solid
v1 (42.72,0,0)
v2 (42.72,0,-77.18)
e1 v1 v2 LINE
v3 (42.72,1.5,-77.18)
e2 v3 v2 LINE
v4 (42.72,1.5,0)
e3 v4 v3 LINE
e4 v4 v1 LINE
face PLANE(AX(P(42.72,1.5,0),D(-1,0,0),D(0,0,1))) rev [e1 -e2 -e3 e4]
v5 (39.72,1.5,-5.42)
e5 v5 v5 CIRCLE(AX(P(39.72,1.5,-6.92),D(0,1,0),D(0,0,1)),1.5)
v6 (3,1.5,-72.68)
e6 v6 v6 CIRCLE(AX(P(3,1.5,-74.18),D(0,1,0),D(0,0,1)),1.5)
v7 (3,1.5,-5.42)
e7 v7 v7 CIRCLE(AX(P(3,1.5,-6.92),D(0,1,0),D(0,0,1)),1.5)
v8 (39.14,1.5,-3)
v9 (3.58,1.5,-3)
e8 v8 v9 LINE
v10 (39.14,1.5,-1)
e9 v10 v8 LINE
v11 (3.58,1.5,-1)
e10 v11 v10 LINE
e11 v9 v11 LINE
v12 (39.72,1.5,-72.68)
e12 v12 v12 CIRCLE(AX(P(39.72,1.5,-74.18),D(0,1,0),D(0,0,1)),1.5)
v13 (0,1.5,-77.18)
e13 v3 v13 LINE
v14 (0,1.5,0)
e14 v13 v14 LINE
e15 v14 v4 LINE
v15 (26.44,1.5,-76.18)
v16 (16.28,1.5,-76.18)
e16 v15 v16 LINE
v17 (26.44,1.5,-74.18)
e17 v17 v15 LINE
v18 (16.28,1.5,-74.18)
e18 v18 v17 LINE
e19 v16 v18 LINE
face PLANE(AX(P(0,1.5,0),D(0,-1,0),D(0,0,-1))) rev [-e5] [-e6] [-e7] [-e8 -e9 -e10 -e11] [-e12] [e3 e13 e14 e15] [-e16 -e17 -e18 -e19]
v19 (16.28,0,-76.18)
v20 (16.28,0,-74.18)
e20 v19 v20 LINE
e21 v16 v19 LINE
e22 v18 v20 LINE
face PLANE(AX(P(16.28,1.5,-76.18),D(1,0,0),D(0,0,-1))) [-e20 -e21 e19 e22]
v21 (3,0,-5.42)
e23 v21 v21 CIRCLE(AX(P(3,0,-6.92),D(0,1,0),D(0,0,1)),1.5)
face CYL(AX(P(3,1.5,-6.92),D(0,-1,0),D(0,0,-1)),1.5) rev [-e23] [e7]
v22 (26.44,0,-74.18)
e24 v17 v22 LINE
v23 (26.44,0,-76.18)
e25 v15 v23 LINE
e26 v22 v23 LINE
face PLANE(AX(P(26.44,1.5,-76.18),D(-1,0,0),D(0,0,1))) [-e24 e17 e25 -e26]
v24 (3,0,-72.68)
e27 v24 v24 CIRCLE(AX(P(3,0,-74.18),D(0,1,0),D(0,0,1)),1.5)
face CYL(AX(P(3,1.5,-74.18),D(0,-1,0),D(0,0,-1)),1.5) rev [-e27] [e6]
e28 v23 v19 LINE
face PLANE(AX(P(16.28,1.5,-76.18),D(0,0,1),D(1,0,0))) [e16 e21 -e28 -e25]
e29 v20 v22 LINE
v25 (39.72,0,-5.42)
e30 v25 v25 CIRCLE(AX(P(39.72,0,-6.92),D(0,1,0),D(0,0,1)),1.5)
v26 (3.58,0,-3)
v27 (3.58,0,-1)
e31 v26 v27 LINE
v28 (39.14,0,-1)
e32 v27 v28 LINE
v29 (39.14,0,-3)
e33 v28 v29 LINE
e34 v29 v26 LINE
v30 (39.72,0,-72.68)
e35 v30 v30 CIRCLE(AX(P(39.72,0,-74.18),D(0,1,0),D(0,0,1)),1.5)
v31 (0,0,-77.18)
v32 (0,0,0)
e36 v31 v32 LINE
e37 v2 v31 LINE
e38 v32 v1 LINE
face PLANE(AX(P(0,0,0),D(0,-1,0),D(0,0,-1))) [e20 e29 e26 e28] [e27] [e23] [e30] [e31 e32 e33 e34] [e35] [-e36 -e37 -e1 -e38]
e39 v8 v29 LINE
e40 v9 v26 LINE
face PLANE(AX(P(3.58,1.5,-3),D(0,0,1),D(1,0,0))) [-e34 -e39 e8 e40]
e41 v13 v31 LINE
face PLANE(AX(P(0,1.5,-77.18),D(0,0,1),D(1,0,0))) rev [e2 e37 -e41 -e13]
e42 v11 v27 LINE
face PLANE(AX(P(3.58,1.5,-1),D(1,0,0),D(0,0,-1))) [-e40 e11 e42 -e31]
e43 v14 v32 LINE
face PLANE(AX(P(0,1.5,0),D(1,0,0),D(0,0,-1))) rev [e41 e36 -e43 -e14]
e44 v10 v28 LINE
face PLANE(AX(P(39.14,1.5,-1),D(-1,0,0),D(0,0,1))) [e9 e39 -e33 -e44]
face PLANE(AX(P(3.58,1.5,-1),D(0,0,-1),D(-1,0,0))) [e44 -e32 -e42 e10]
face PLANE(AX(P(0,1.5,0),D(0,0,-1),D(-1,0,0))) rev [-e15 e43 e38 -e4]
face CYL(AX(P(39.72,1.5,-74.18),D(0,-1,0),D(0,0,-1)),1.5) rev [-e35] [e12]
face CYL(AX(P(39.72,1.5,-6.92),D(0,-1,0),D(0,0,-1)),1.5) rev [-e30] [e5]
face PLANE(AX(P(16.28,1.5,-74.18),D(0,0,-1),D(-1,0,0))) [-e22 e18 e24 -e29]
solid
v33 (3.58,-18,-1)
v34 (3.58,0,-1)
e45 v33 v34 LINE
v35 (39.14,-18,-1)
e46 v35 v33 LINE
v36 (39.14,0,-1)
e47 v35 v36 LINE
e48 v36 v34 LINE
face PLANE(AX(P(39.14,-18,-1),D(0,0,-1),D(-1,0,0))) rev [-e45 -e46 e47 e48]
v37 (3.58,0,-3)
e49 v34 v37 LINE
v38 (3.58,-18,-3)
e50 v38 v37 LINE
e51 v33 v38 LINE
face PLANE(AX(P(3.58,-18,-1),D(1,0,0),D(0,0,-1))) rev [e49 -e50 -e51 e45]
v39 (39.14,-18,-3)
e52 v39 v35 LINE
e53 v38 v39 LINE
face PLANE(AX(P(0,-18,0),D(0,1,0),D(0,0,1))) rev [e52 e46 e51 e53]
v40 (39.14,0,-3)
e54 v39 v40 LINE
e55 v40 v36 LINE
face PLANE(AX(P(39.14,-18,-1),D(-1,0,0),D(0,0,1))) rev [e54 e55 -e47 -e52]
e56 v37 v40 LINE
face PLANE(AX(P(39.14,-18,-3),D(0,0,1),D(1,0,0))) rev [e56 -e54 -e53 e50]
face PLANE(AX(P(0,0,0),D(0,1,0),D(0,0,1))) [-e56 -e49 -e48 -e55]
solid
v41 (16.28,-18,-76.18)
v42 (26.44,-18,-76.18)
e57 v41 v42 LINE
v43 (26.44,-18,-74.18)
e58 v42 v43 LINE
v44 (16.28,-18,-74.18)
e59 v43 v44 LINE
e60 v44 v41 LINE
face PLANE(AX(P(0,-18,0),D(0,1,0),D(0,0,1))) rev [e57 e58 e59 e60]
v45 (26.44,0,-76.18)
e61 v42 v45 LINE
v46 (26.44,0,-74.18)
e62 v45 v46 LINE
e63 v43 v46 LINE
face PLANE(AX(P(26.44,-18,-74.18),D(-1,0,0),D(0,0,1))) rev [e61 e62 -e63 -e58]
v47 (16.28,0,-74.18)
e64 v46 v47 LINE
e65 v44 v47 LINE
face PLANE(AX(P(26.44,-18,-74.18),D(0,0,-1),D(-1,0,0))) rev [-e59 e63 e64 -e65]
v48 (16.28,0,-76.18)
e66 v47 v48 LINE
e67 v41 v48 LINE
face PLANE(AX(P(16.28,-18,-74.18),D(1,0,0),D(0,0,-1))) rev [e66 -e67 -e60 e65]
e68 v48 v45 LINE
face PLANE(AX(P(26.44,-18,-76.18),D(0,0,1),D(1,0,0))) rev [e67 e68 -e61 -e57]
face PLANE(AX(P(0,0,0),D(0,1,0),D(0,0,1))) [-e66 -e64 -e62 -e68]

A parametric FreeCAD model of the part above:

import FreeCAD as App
import Part
import Sketcher

V = App.Vector


def add_polygon(sketch, points):
    """Adds a closed chain of lines whose ends are joined by coincident constraints."""
    first, n = sketch.GeometryCount, len(points)
    for a, b in zip(points, points[1:] + points[:1]):
        sketch.addGeometry(Part.LineSegment(App.Vector(*a, 0), App.Vector(*b, 0)), False)
    for i in range(n):
        sketch.addConstraint(Sketcher.Constraint("Coincident", first + i, 2, first + (i + 1) % n, 1))

doc = App.newDocument("Part")
params = doc.addObject("Spreadsheet::Sheet", "Params")
for row, (alias, value) in enumerate([
    ("sketch1_diameter", "3 mm"),
    ("sketch1_height", "2 mm"),
    ("sketch1_width", "42.72 mm"),
    ("sketch1_width2", "35.56 mm"),
    ("sketch1_width3", "10.16 mm"),
    ("pad1_length", "1.5 mm"),
    ("sketch2_height", "2 mm"),
    ("sketch2_width", "35.56 mm"),
    ("pad2_length", "18 mm"),
    ("sketch3_height", "2 mm"),
    ("sketch3_width", "10.16 mm"),
    ("pad3_length", "18 mm"),
], start=1):
    params.set(f"A{row}", alias)
    params.set(f"B{row}", "=" + value)
    params.setAlias(f"B{row}", alias)

body = doc.addObject("PartDesign::Body", "Body")

# Sketch on XZ plane
sketch1 = body.newObject("Sketcher::SketchObject", "Sketch")
sketch1.AttachmentSupport = (doc.getObject("XZ_Plane"), [""])
sketch1.MapMode = "FlatFace"
add_polygon(sketch1, [(0, -77.2), (0, 0), (42.7, 0), (42.7, -77.2)])  # lines 0-3
sketch1.addGeometry(Part.Circle(V(3, -6.9, 0), V(0, 0, 1), 1.5), False)  # 4
add_polygon(sketch1, [(39.1, -1), (3.6, -1), (3.6, -3), (39.1, -3)])  # lines 5-8
sketch1.addGeometry(Part.Circle(V(39.7, -6.9, 0), V(0, 0, 1), 1.5), False)  # 9
sketch1.addGeometry(Part.Circle(V(3, -74.2, 0), V(0, 0, 1), 1.5), False)  # 10
add_polygon(sketch1, [(26.4, -74.2), (16.3, -74.2), (16.3, -76.2), (26.4, -76.2)])  # lines 11-14
sketch1.addGeometry(Part.Circle(V(39.7, -74.2, 0), V(0, 0, 1), 1.5), False)  # 15
sketch1.addConstraint([
    Sketcher.Constraint("Vertical", 0),
    Sketcher.Constraint("Horizontal", 1),
    Sketcher.Constraint("Vertical", 2),
    Sketcher.Constraint("Horizontal", 3),
    Sketcher.Constraint("Horizontal", 5),
    Sketcher.Constraint("Vertical", 6),
    Sketcher.Constraint("Horizontal", 7),
    Sketcher.Constraint("Vertical", 8),
    Sketcher.Constraint("Horizontal", 11),
    Sketcher.Constraint("Vertical", 12),
    Sketcher.Constraint("Horizontal", 13),
    Sketcher.Constraint("Vertical", 14),
    Sketcher.Constraint("Coincident", 0, 2, -1, 1),
    Sketcher.Constraint("Equal", 4, 9),
    Sketcher.Constraint("Equal", 9, 10),
    Sketcher.Constraint("Equal", 10, 15),
    Sketcher.Constraint("Horizontal", 4, 3, 9, 3),
    Sketcher.Constraint("Horizontal", 10, 3, 15, 3),
    Sketcher.Constraint("Horizontal", 15, 3, 11, 2),
    Sketcher.Constraint("Vertical", 4, 3, 10, 3),
    Sketcher.Constraint("Vertical", 9, 3, 15, 3),
    Sketcher.Constraint("Equal", 8, 12),
    Sketcher.Constraint("Diameter", 4, 3.0),
    Sketcher.Constraint("DistanceY", 6, 2, 6, 1, 2.0),
    Sketcher.Constraint("DistanceX", -1, 1, 4, 3, 3.0),
    Sketcher.Constraint("DistanceY", 5, 2, -1, 1, 1.0),
    Sketcher.Constraint("DistanceX", 9, 3, 1, 2, 3.0),
    Sketcher.Constraint("DistanceY", 2, 2, 15, 3, 3.0),
    Sketcher.Constraint("DistanceX", 1, 1, 1, 2, 42.72),
    Sketcher.Constraint("DistanceX", 5, 2, 5, 1, 35.56),
    Sketcher.Constraint("DistanceX", 11, 2, 11, 1, 10.16),
    Sketcher.Constraint("DistanceY", 0, 1, 0, 2, 77.18),
    Sketcher.Constraint("DistanceY", 4, 3, -1, 1, 6.92),
    Sketcher.Constraint("DistanceX", -1, 1, 5, 2, 3.58),
    Sketcher.Constraint("DistanceX", -1, 1, 11, 2, 16.28),
])
sketch1.setExpression("Constraints[34]", "Params.sketch1_diameter")
sketch1.setExpression("Constraints[35]", "Params.sketch1_height")
sketch1.setExpression("Constraints[40]", "Params.sketch1_width")
sketch1.setExpression("Constraints[41]", "Params.sketch1_width2")
sketch1.setExpression("Constraints[42]", "Params.sketch1_width3")
pad1 = body.newObject("PartDesign::Pad", "Pad")
pad1.Profile = sketch1
pad1.setExpression("Length", "Params.pad1_length")
pad1.Reversed = True
body2 = doc.addObject("PartDesign::Body", "Body001")

# Sketch on XZ plane
sketch2 = body2.newObject("Sketcher::SketchObject", "Sketch001")
sketch2.AttachmentSupport = (doc.getObject("XZ_Plane001"), [""])
sketch2.MapMode = "FlatFace"
add_polygon(sketch2, [(3.6, -1), (3.6, -3), (39.1, -3), (39.1, -1)])  # lines 0-3
sketch2.addConstraint([
    Sketcher.Constraint("Vertical", 0),
    Sketcher.Constraint("Horizontal", 1),
    Sketcher.Constraint("Vertical", 2),
    Sketcher.Constraint("Horizontal", 3),
    Sketcher.Constraint("DistanceY", 0, 2, 0, 1, 2.0),
    Sketcher.Constraint("DistanceY", 0, 2, -1, 1, 3.0),
    Sketcher.Constraint("DistanceX", 1, 1, 1, 2, 35.56),
    Sketcher.Constraint("DistanceX", -1, 1, 0, 2, 3.58),
])
sketch2.setExpression("Constraints[8]", "Params.sketch2_height")
sketch2.setExpression("Constraints[10]", "Params.sketch2_width")
pad2 = body2.newObject("PartDesign::Pad", "Pad001")
pad2.Profile = sketch2
pad2.setExpression("Length", "Params.pad2_length")
body3 = doc.addObject("PartDesign::Body", "Body002")

# Sketch on XZ plane
sketch3 = body3.newObject("Sketcher::SketchObject", "Sketch002")
sketch3.AttachmentSupport = (doc.getObject("XZ_Plane002"), [""])
sketch3.MapMode = "FlatFace"
add_polygon(sketch3, [(16.3, -74.2), (16.3, -76.2), (26.4, -76.2), (26.4, -74.2)])  # lines 0-3
sketch3.addConstraint([
    Sketcher.Constraint("Vertical", 0),
    Sketcher.Constraint("Horizontal", 1),
    Sketcher.Constraint("Vertical", 2),
    Sketcher.Constraint("Horizontal", 3),
    Sketcher.Constraint("DistanceY", 0, 2, 0, 1, 2.0),
    Sketcher.Constraint("DistanceX", 1, 1, 1, 2, 10.16),
    Sketcher.Constraint("DistanceX", -1, 1, 0, 2, 16.28),
    Sketcher.Constraint("DistanceY", 0, 2, -1, 1, 76.18),
])
sketch3.setExpression("Constraints[8]", "Params.sketch3_height")
sketch3.setExpression("Constraints[9]", "Params.sketch3_width")
pad3 = body3.newObject("PartDesign::Pad", "Pad002")
pad3.Profile = sketch3
pad3.setExpression("Length", "Params.pad3_length")

doc.recompute()
